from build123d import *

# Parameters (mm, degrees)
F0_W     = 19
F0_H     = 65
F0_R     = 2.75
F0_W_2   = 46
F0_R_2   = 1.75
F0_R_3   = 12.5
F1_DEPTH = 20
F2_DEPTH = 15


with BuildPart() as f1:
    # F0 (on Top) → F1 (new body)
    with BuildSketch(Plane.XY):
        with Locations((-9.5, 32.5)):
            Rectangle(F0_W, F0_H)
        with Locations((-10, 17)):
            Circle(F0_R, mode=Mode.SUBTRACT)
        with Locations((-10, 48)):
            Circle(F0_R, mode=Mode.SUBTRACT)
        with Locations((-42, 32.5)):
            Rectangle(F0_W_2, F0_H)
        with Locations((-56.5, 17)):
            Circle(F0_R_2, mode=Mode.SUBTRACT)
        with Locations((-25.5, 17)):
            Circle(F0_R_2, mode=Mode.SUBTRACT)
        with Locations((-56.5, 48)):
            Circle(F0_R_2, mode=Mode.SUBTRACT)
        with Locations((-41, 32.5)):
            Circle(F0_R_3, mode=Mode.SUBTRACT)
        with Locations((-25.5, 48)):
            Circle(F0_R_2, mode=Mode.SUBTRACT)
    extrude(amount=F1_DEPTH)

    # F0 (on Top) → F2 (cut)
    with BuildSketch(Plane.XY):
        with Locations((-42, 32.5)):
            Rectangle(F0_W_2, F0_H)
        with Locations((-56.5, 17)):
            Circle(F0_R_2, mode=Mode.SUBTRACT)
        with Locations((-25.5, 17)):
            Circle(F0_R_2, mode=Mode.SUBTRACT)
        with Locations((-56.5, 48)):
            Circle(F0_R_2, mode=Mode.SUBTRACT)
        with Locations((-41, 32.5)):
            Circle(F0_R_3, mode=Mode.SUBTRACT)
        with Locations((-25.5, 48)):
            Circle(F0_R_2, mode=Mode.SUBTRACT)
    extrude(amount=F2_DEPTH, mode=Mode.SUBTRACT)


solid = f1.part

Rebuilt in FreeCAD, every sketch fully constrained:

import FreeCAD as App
import Part
import Sketcher
from FreeCAD import Vector

doc = App.newDocument("Part")
body = doc.addObject("PartDesign::Body", "Body")

# Sketch on XY plane
sketch1 = body.newObject("Sketcher::SketchObject", "Sketch")
sketch1.AttachmentSupport = (doc.getObject("XY_Plane"), [""])
sketch1.MapMode = "FlatFace"
sketch1.addGeometry(Part.LineSegment(Vector(0, 0, 0), Vector(0, 65, 0)), False)
sketch1.addGeometry(Part.LineSegment(Vector(0, 65, 0), Vector(-65, 65, 0)), False)
sketch1.addGeometry(Part.LineSegment(Vector(-65, 65, 0), Vector(-65, 0, 0)), False)
sketch1.addGeometry(Part.LineSegment(Vector(-65, 0, 0), Vector(0, 0, 0)), False)
sketch1.addGeometry(Part.Circle(Vector(-56.5, 17, 0), Vector(0, 0, 1), 1.75), False)
sketch1.addGeometry(Part.Circle(Vector(-25.5, 17, 0), Vector(0, 0, 1), 1.75), False)
sketch1.addGeometry(Part.Circle(Vector(-10, 17, 0), Vector(0, 0, 1), 2.75), False)
sketch1.addGeometry(Part.Circle(Vector(-41, 32.5, 0), Vector(0, 0, 1), 12.5), False)
sketch1.addGeometry(Part.Circle(Vector(-56.5, 48, 0), Vector(0, 0, 1), 1.75), False)
sketch1.addGeometry(Part.Circle(Vector(-25.5, 48, 0), Vector(0, 0, 1), 1.75), False)
sketch1.addGeometry(Part.Circle(Vector(-10, 48, 0), Vector(0, 0, 1), 2.75), False)
sketch1.addConstraint(Sketcher.Constraint("Coincident", 0, 2, 1, 1))
sketch1.addConstraint(Sketcher.Constraint("Coincident", 1, 2, 2, 1))
sketch1.addConstraint(Sketcher.Constraint("Coincident", 2, 2, 3, 1))
sketch1.addConstraint(Sketcher.Constraint("Coincident", 3, 2, 0, 1))
sketch1.addConstraint(Sketcher.Constraint("Vertical", 0))
sketch1.addConstraint(Sketcher.Constraint("Horizontal", 1))
sketch1.addConstraint(Sketcher.Constraint("Vertical", 2))
sketch1.addConstraint(Sketcher.Constraint("Horizontal", 3))
sketch1.addConstraint(Sketcher.Constraint("Coincident", 3, 2, -1, 1))
sketch1.addConstraint(Sketcher.Constraint("Equal", 4, 5))
sketch1.addConstraint(Sketcher.Constraint("Equal", 5, 8))
sketch1.addConstraint(Sketcher.Constraint("Equal", 8, 9))
sketch1.addConstraint(Sketcher.Constraint("Equal", 6, 10))
sketch1.addConstraint(Sketcher.Constraint("Horizontal", 4, 3, 5, 3))
sketch1.addConstraint(Sketcher.Constraint("Horizontal", 5, 3, 6, 3))
sketch1.addConstraint(Sketcher.Constraint("Horizontal", 8, 3, 9, 3))
sketch1.addConstraint(Sketcher.Constraint("Horizontal", 9, 3, 10, 3))
sketch1.addConstraint(Sketcher.Constraint("Vertical", 4, 3, 8, 3))
sketch1.addConstraint(Sketcher.Constraint("Vertical", 5, 3, 9, 3))
sketch1.addConstraint(Sketcher.Constraint("Vertical", 6, 3, 10, 3))
sketch1.addConstraint(Sketcher.Constraint("Equal", 3, 0))
sketch1.addConstraint(Sketcher.Constraint("Diameter", 7, 25.0))
sketch1.addConstraint(Sketcher.Constraint("Diameter", 4, 3.5))
sketch1.addConstraint(Sketcher.Constraint("Diameter", 6, 5.5))
sketch1.addConstraint(Sketcher.Constraint("DistanceX", 1, 2, 1, 1, 65.0))
sketch1.addConstraint(Sketcher.Constraint("DistanceY", -1, 1, 4, 3, 17.0))
sketch1.addConstraint(Sketcher.Constraint("DistanceX", 6, 3, -1, 1, 10.0))
sketch1.addConstraint(Sketcher.Constraint("DistanceX", 7, 3, -1, 1, 41.0))
sketch1.addConstraint(Sketcher.Constraint("DistanceY", -1, 1, 8, 3, 48.0))
sketch1.addConstraint(Sketcher.Constraint("DistanceX", 4, 3, 5, 3, 31.0))
sketch1.addConstraint(Sketcher.Constraint("DistanceX", 4, 3, -1, 1, 56.5))
sketch1.addConstraint(Sketcher.Constraint("DistanceY", -1, 1, 7, 3, 32.5))
pad1 = body.newObject("PartDesign::Pad", "Pad")
pad1.Profile = sketch1
pad1.Length = 20

# Sketch on XY plane
sketch2 = body.newObject("Sketcher::SketchObject", "Sketch001")
sketch2.AttachmentSupport = (doc.getObject("XY_Plane"), [""])
sketch2.MapMode = "FlatFace"
sketch2.addGeometry(Part.LineSegment(Vector(-65, 65, 0), Vector(-65, 0, 0)), False)
sketch2.addGeometry(Part.LineSegment(Vector(-65, 0, 0), Vector(-19, 0, 0)), False)
sketch2.addGeometry(Part.LineSegment(Vector(-19, 0, 0), Vector(-19, 65, 0)), False)
sketch2.addGeometry(Part.LineSegment(Vector(-19, 65, 0), Vector(-65, 65, 0)), False)
sketch2.addGeometry(Part.Circle(Vector(-56.5, 17, 0), Vector(0, 0, 1), 1.75), False)
sketch2.addGeometry(Part.Circle(Vector(-25.5, 17, 0), Vector(0, 0, 1), 1.75), False)
sketch2.addGeometry(Part.Circle(Vector(-56.5, 48, 0), Vector(0, 0, 1), 1.75), False)
sketch2.addGeometry(Part.Circle(Vector(-41, 32.5, 0), Vector(0, 0, 1), 12.5), False)
sketch2.addGeometry(Part.Circle(Vector(-25.5, 48, 0), Vector(0, 0, 1), 1.75), False)
sketch2.addConstraint(Sketcher.Constraint("Coincident", 0, 2, 1, 1))
sketch2.addConstraint(Sketcher.Constraint("Coincident", 1, 2, 2, 1))
sketch2.addConstraint(Sketcher.Constraint("Coincident", 2, 2, 3, 1))
sketch2.addConstraint(Sketcher.Constraint("Coincident", 3, 2, 0, 1))
sketch2.addConstraint(Sketcher.Constraint("Vertical", 0))
sketch2.addConstraint(Sketcher.Constraint("Horizontal", 1))
sketch2.addConstraint(Sketcher.Constraint("Vertical", 2))
sketch2.addConstraint(Sketcher.Constraint("Horizontal", 3))
sketch2.addConstraint(Sketcher.Constraint("Equal", 4, 5))
sketch2.addConstraint(Sketcher.Constraint("Equal", 5, 6))
sketch2.addConstraint(Sketcher.Constraint("Equal", 6, 8))
sketch2.addConstraint(Sketcher.Constraint("PointOnObject", 0, 2, -1))
sketch2.addConstraint(Sketcher.Constraint("Horizontal", 4, 3, 5, 3))
sketch2.addConstraint(Sketcher.Constraint("Horizontal", 6, 3, 8, 3))
sketch2.addConstraint(Sketcher.Constraint("Vertical", 4, 3, 6, 3))
sketch2.addConstraint(Sketcher.Constraint("Vertical", 5, 3, 8, 3))
sketch2.addConstraint(Sketcher.Constraint("Diameter", 7, 25.0))
sketch2.addConstraint(Sketcher.Constraint("Diameter", 4, 3.5))
sketch2.addConstraint(Sketcher.Constraint("DistanceX", 1, 1, 1, 2, 46.0))
sketch2.addConstraint(Sketcher.Constraint("DistanceY", 0, 2, 0, 1, 65.0))
sketch2.addConstraint(Sketcher.Constraint("DistanceY", -1, 1, 4, 3, 17.0))
sketch2.addConstraint(Sketcher.Constraint("DistanceY", -1, 1, 6, 3, 48.0))
sketch2.addConstraint(Sketcher.Constraint("DistanceX", 7, 3, -1, 1, 41.0))
sketch2.addConstraint(Sketcher.Constraint("DistanceX", 0, 2, -1, 1, 65.0))
sketch2.addConstraint(Sketcher.Constraint("DistanceX", 4, 3, 5, 3, 31.0))
sketch2.addConstraint(Sketcher.Constraint("DistanceX", 4, 3, -1, 1, 56.5))
sketch2.addConstraint(Sketcher.Constraint("DistanceY", -1, 1, 7, 3, 32.5))
pocket1 = body.newObject("PartDesign::Pocket", "Pocket")
pocket1.Profile = sketch2
pocket1.Length = 15
pocket1.Reversed = True

doc.recompute()
